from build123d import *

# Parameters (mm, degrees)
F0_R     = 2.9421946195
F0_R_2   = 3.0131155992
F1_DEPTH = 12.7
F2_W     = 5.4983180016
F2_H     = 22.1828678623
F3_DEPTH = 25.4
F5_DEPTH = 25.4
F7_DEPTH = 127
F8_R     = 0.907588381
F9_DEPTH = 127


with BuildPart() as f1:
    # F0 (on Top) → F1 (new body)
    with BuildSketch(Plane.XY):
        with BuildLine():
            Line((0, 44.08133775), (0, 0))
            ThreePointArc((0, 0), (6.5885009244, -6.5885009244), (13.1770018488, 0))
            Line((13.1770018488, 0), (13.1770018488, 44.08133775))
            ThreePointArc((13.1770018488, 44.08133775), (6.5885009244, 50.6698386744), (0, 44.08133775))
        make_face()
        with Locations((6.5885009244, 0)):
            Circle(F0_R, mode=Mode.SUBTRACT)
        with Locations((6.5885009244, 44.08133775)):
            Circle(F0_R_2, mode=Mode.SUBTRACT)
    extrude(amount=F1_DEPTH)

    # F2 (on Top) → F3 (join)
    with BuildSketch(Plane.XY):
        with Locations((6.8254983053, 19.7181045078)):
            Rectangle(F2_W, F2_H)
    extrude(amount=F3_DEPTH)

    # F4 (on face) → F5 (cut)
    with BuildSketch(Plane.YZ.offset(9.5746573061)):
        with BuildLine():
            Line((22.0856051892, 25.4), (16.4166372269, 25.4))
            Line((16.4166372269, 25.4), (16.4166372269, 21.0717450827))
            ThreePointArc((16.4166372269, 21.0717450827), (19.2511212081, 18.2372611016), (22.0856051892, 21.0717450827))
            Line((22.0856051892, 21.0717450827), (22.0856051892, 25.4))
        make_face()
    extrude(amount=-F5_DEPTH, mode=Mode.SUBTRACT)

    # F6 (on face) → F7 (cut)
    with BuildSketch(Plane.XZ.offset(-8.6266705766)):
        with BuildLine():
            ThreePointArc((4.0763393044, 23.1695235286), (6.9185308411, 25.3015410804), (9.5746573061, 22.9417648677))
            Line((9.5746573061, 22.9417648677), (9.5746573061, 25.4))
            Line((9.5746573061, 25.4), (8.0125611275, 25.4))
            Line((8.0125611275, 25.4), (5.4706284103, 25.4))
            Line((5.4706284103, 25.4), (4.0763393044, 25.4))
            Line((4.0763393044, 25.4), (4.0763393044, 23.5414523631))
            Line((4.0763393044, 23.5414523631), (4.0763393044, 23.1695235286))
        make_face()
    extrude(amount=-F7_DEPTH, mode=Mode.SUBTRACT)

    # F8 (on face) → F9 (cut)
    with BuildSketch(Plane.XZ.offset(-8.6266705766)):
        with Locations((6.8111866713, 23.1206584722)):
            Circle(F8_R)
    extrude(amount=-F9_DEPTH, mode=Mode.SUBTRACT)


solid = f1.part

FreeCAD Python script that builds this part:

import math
import FreeCAD as App
import Part
import Sketcher

V = App.Vector
Q = App.Units.Quantity


def add_polygon(sketch, points):
    """Adds a closed chain of lines whose ends are joined by coincident constraints."""
    first, n = sketch.GeometryCount, len(points)
    for a, b in zip(points, points[1:] + points[:1]):
        sketch.addGeometry(Part.LineSegment(App.Vector(*a, 0), App.Vector(*b, 0)), False)
    for i in range(n):
        sketch.addConstraint(Sketcher.Constraint("Coincident", first + i, 2, first + (i + 1) % n, 1))

doc = App.newDocument("Part")
body = doc.addObject("PartDesign::Body", "Body")

# Sketch on XY plane
sketch1 = body.newObject("Sketcher::SketchObject", "Sketch")
sketch1.AttachmentSupport = (doc.getObject("XY_Plane"), [""])
sketch1.MapMode = "FlatFace"
sketch1.addGeometry([
    Part.LineSegment(V(0, 44.1, 0), V(0, 0, 0)),  # 0
    Part.ArcOfCircle(Part.Circle(V(6.6, 0, 0), V(0, 0, 1), 6.6), math.radians(180), math.radians(360)),  # 1
    Part.LineSegment(V(13.2, 0, 0), V(13.2, 44.1, 0)),  # 2
    Part.ArcOfCircle(Part.Circle(V(6.6, 44.1, 0), V(0, 0, 1), 6.6), math.radians(0), math.radians(180)),  # 3
    Part.Circle(V(6.6, 0, 0), V(0, 0, 1), 2.9),  # 4
    Part.Circle(V(6.6, 44.1, 0), V(0, 0, 1), 3),  # 5
], False)
sketch1.addConstraint([
    Sketcher.Constraint("Tangent", 0, 2, 1, 1),
    Sketcher.Constraint("Tangent", 1, 2, 2, 1),
    Sketcher.Constraint("Tangent", 2, 2, 3, 1),
    Sketcher.Constraint("Tangent", 3, 2, 0, 1),
    Sketcher.Constraint("Vertical", 0),
    Sketcher.Constraint("Vertical", 2),
    Sketcher.Constraint("Coincident", 0, 2, -1, 1),
    Sketcher.Constraint("Coincident", 4, 3, 1, 3),
    Sketcher.Constraint("Coincident", 5, 3, 3, 3),
    Sketcher.Constraint("Radius", 1, 6.588501),
    Sketcher.Constraint("Diameter", 4, 5.884389),
    Sketcher.Constraint("Diameter", 5, 6.026231),
    Sketcher.Constraint("DistanceY", 0, 2, 0, 1, 44.081338),
])
pad1 = body.newObject("PartDesign::Pad", "Pad")
pad1.Profile = sketch1
pad1.Length = Q("0.5 in")

# Sketch on XY plane
sketch2 = body.newObject("Sketcher::SketchObject", "Sketch001")
sketch2.AttachmentSupport = (doc.getObject("XY_Plane"), [""])
sketch2.MapMode = "FlatFace"
add_polygon(sketch2, [(4, 31), (4, 9), (10, 9), (10, 31)])  # lines 0-3
sketch2.addConstraint([
    Sketcher.Constraint("Vertical", 0),
    Sketcher.Constraint("Horizontal", 1),
    Sketcher.Constraint("Vertical", 2),
    Sketcher.Constraint("Horizontal", 3),
    Sketcher.Constraint("DistanceX", 1, 1, 1, 2, 5.498318),
    Sketcher.Constraint("DistanceY", 0, 2, 0, 1, 22.182868),
    Sketcher.Constraint("DistanceX", -1, 1, 0, 2, 4.076339),
    Sketcher.Constraint("DistanceY", -1, 1, 0, 2, 8.626671),
])
pad2 = body.newObject("PartDesign::Pad", "Pad001")
pad2.Profile = sketch2
pad2.Length = Q("1 in")

# Sketch on YZ plane
sketch3 = body.newObject("Sketcher::SketchObject", "Sketch002")
sketch3.AttachmentSupport = (doc.getObject("YZ_Plane"), [""])
sketch3.MapMode = "FlatFace"
sketch3.AttachmentOffset = App.Placement(V(0, 0, 9.574657), App.Rotation())
sketch3.addGeometry([
    Part.LineSegment(V(22.1, 25.4, 0), V(16.4, 25.4, 0)),
    Part.LineSegment(V(16.4, 25.4, 0), V(16.4, 21.1, 0)),
    Part.ArcOfCircle(Part.Circle(V(19.3, 21.1, 0), V(0, 0, 1), 2.8), math.radians(180), math.radians(360)),
    Part.LineSegment(V(22.1, 21.1, 0), V(22.1, 25.4, 0)),
], False)
sketch3.addConstraint([
    Sketcher.Constraint("Coincident", 0, 2, 1, 1),
    Sketcher.Constraint("Tangent", 1, 2, 2, 1),
    Sketcher.Constraint("Tangent", 2, 2, 3, 1),
    Sketcher.Constraint("Coincident", 3, 2, 0, 1),
    Sketcher.Constraint("Horizontal", 0),
    Sketcher.Constraint("Vertical", 1),
    Sketcher.Constraint("Vertical", 3),
    Sketcher.Constraint("DistanceY", -1, 1, 0, 2, Q("1 in")),
    Sketcher.Constraint("Radius", 2, 2.834484),
    Sketcher.Constraint("DistanceY", 1, 2, 1, 1, 4.328255),
    Sketcher.Constraint("DistanceX", -1, 1, 2, 3, 19.251121),
])
pocket1 = body.newObject("PartDesign::Pocket", "Pocket")
pocket1.Profile = sketch3
pocket1.Length = Q("1 in")

# Sketch on XZ plane
sketch4 = body.newObject("Sketcher::SketchObject", "Sketch003")
sketch4.AttachmentSupport = (doc.getObject("XZ_Plane"), [""])
sketch4.MapMode = "FlatFace"
sketch4.AttachmentOffset = App.Placement(V(0, 0, -8.626671), App.Rotation())
sketch4.addGeometry([
    Part.ArcOfCircle(Part.Circle(V(6.8, 22.5, 0), V(0, 0, 1), 2.8), math.radians(9), math.radians(166)),
    Part.LineSegment(V(9.6, 22.9, 0), V(9.6, 25.4, 0)),
    Part.LineSegment(V(9.6, 25.4, 0), V(4.1, 25.4, 0)),
    Part.LineSegment(V(4.1, 25.4, 0), V(4.1, 23.2, 0)),
], False)
sketch4.addConstraint([
    Sketcher.Constraint("Coincident", 0, 1, 1, 1),
    Sketcher.Constraint("Coincident", 1, 2, 2, 1),
    Sketcher.Constraint("Coincident", 2, 2, 3, 1),
    Sketcher.Constraint("Coincident", 3, 2, 0, 2),
    Sketcher.Constraint("Vertical", 1),
    Sketcher.Constraint("Horizontal", 2),
    Sketcher.Constraint("Vertical", 3),
    Sketcher.Constraint("DistanceY", -1, 1, 1, 2, Q("1 in")),
    Sketcher.Constraint("Radius", 0, 2.807951),
    Sketcher.Constraint("DistanceX", 2, 2, 2, 1, 5.498318),
    Sketcher.Constraint("DistanceY", 1, 1, 1, 2, 2.458235),
    Sketcher.Constraint("DistanceY", 3, 2, 3, 1, 2.230476),
    Sketcher.Constraint("DistanceX", -1, 1, 2, 2, 4.076339),
])
pocket2 = body.newObject("PartDesign::Pocket", "Pocket001")
pocket2.Profile = sketch4
pocket2.Length = Q("5 in")

# Sketch on XZ plane
sketch5 = body.newObject("Sketcher::SketchObject", "Sketch004")
sketch5.AttachmentSupport = (doc.getObject("XZ_Plane"), [""])
sketch5.MapMode = "FlatFace"
sketch5.AttachmentOffset = App.Placement(V(0, 0, -8.626671), App.Rotation())
sketch5.addGeometry(Part.Circle(V(6.8, 23.1, 0), V(0, 0, 1), 0.9), False)
sketch5.addConstraint([
    Sketcher.Constraint("Diameter", 0, 1.815177),
    Sketcher.Constraint("DistanceY", -1, 1, 0, 3, 23.120658),
    Sketcher.Constraint("DistanceX", -1, 1, 0, 3, 6.811187),
])
pocket3 = body.newObject("PartDesign::Pocket", "Pocket002")
pocket3.Profile = sketch5
pocket3.Length = Q("5 in")

doc.recompute()
